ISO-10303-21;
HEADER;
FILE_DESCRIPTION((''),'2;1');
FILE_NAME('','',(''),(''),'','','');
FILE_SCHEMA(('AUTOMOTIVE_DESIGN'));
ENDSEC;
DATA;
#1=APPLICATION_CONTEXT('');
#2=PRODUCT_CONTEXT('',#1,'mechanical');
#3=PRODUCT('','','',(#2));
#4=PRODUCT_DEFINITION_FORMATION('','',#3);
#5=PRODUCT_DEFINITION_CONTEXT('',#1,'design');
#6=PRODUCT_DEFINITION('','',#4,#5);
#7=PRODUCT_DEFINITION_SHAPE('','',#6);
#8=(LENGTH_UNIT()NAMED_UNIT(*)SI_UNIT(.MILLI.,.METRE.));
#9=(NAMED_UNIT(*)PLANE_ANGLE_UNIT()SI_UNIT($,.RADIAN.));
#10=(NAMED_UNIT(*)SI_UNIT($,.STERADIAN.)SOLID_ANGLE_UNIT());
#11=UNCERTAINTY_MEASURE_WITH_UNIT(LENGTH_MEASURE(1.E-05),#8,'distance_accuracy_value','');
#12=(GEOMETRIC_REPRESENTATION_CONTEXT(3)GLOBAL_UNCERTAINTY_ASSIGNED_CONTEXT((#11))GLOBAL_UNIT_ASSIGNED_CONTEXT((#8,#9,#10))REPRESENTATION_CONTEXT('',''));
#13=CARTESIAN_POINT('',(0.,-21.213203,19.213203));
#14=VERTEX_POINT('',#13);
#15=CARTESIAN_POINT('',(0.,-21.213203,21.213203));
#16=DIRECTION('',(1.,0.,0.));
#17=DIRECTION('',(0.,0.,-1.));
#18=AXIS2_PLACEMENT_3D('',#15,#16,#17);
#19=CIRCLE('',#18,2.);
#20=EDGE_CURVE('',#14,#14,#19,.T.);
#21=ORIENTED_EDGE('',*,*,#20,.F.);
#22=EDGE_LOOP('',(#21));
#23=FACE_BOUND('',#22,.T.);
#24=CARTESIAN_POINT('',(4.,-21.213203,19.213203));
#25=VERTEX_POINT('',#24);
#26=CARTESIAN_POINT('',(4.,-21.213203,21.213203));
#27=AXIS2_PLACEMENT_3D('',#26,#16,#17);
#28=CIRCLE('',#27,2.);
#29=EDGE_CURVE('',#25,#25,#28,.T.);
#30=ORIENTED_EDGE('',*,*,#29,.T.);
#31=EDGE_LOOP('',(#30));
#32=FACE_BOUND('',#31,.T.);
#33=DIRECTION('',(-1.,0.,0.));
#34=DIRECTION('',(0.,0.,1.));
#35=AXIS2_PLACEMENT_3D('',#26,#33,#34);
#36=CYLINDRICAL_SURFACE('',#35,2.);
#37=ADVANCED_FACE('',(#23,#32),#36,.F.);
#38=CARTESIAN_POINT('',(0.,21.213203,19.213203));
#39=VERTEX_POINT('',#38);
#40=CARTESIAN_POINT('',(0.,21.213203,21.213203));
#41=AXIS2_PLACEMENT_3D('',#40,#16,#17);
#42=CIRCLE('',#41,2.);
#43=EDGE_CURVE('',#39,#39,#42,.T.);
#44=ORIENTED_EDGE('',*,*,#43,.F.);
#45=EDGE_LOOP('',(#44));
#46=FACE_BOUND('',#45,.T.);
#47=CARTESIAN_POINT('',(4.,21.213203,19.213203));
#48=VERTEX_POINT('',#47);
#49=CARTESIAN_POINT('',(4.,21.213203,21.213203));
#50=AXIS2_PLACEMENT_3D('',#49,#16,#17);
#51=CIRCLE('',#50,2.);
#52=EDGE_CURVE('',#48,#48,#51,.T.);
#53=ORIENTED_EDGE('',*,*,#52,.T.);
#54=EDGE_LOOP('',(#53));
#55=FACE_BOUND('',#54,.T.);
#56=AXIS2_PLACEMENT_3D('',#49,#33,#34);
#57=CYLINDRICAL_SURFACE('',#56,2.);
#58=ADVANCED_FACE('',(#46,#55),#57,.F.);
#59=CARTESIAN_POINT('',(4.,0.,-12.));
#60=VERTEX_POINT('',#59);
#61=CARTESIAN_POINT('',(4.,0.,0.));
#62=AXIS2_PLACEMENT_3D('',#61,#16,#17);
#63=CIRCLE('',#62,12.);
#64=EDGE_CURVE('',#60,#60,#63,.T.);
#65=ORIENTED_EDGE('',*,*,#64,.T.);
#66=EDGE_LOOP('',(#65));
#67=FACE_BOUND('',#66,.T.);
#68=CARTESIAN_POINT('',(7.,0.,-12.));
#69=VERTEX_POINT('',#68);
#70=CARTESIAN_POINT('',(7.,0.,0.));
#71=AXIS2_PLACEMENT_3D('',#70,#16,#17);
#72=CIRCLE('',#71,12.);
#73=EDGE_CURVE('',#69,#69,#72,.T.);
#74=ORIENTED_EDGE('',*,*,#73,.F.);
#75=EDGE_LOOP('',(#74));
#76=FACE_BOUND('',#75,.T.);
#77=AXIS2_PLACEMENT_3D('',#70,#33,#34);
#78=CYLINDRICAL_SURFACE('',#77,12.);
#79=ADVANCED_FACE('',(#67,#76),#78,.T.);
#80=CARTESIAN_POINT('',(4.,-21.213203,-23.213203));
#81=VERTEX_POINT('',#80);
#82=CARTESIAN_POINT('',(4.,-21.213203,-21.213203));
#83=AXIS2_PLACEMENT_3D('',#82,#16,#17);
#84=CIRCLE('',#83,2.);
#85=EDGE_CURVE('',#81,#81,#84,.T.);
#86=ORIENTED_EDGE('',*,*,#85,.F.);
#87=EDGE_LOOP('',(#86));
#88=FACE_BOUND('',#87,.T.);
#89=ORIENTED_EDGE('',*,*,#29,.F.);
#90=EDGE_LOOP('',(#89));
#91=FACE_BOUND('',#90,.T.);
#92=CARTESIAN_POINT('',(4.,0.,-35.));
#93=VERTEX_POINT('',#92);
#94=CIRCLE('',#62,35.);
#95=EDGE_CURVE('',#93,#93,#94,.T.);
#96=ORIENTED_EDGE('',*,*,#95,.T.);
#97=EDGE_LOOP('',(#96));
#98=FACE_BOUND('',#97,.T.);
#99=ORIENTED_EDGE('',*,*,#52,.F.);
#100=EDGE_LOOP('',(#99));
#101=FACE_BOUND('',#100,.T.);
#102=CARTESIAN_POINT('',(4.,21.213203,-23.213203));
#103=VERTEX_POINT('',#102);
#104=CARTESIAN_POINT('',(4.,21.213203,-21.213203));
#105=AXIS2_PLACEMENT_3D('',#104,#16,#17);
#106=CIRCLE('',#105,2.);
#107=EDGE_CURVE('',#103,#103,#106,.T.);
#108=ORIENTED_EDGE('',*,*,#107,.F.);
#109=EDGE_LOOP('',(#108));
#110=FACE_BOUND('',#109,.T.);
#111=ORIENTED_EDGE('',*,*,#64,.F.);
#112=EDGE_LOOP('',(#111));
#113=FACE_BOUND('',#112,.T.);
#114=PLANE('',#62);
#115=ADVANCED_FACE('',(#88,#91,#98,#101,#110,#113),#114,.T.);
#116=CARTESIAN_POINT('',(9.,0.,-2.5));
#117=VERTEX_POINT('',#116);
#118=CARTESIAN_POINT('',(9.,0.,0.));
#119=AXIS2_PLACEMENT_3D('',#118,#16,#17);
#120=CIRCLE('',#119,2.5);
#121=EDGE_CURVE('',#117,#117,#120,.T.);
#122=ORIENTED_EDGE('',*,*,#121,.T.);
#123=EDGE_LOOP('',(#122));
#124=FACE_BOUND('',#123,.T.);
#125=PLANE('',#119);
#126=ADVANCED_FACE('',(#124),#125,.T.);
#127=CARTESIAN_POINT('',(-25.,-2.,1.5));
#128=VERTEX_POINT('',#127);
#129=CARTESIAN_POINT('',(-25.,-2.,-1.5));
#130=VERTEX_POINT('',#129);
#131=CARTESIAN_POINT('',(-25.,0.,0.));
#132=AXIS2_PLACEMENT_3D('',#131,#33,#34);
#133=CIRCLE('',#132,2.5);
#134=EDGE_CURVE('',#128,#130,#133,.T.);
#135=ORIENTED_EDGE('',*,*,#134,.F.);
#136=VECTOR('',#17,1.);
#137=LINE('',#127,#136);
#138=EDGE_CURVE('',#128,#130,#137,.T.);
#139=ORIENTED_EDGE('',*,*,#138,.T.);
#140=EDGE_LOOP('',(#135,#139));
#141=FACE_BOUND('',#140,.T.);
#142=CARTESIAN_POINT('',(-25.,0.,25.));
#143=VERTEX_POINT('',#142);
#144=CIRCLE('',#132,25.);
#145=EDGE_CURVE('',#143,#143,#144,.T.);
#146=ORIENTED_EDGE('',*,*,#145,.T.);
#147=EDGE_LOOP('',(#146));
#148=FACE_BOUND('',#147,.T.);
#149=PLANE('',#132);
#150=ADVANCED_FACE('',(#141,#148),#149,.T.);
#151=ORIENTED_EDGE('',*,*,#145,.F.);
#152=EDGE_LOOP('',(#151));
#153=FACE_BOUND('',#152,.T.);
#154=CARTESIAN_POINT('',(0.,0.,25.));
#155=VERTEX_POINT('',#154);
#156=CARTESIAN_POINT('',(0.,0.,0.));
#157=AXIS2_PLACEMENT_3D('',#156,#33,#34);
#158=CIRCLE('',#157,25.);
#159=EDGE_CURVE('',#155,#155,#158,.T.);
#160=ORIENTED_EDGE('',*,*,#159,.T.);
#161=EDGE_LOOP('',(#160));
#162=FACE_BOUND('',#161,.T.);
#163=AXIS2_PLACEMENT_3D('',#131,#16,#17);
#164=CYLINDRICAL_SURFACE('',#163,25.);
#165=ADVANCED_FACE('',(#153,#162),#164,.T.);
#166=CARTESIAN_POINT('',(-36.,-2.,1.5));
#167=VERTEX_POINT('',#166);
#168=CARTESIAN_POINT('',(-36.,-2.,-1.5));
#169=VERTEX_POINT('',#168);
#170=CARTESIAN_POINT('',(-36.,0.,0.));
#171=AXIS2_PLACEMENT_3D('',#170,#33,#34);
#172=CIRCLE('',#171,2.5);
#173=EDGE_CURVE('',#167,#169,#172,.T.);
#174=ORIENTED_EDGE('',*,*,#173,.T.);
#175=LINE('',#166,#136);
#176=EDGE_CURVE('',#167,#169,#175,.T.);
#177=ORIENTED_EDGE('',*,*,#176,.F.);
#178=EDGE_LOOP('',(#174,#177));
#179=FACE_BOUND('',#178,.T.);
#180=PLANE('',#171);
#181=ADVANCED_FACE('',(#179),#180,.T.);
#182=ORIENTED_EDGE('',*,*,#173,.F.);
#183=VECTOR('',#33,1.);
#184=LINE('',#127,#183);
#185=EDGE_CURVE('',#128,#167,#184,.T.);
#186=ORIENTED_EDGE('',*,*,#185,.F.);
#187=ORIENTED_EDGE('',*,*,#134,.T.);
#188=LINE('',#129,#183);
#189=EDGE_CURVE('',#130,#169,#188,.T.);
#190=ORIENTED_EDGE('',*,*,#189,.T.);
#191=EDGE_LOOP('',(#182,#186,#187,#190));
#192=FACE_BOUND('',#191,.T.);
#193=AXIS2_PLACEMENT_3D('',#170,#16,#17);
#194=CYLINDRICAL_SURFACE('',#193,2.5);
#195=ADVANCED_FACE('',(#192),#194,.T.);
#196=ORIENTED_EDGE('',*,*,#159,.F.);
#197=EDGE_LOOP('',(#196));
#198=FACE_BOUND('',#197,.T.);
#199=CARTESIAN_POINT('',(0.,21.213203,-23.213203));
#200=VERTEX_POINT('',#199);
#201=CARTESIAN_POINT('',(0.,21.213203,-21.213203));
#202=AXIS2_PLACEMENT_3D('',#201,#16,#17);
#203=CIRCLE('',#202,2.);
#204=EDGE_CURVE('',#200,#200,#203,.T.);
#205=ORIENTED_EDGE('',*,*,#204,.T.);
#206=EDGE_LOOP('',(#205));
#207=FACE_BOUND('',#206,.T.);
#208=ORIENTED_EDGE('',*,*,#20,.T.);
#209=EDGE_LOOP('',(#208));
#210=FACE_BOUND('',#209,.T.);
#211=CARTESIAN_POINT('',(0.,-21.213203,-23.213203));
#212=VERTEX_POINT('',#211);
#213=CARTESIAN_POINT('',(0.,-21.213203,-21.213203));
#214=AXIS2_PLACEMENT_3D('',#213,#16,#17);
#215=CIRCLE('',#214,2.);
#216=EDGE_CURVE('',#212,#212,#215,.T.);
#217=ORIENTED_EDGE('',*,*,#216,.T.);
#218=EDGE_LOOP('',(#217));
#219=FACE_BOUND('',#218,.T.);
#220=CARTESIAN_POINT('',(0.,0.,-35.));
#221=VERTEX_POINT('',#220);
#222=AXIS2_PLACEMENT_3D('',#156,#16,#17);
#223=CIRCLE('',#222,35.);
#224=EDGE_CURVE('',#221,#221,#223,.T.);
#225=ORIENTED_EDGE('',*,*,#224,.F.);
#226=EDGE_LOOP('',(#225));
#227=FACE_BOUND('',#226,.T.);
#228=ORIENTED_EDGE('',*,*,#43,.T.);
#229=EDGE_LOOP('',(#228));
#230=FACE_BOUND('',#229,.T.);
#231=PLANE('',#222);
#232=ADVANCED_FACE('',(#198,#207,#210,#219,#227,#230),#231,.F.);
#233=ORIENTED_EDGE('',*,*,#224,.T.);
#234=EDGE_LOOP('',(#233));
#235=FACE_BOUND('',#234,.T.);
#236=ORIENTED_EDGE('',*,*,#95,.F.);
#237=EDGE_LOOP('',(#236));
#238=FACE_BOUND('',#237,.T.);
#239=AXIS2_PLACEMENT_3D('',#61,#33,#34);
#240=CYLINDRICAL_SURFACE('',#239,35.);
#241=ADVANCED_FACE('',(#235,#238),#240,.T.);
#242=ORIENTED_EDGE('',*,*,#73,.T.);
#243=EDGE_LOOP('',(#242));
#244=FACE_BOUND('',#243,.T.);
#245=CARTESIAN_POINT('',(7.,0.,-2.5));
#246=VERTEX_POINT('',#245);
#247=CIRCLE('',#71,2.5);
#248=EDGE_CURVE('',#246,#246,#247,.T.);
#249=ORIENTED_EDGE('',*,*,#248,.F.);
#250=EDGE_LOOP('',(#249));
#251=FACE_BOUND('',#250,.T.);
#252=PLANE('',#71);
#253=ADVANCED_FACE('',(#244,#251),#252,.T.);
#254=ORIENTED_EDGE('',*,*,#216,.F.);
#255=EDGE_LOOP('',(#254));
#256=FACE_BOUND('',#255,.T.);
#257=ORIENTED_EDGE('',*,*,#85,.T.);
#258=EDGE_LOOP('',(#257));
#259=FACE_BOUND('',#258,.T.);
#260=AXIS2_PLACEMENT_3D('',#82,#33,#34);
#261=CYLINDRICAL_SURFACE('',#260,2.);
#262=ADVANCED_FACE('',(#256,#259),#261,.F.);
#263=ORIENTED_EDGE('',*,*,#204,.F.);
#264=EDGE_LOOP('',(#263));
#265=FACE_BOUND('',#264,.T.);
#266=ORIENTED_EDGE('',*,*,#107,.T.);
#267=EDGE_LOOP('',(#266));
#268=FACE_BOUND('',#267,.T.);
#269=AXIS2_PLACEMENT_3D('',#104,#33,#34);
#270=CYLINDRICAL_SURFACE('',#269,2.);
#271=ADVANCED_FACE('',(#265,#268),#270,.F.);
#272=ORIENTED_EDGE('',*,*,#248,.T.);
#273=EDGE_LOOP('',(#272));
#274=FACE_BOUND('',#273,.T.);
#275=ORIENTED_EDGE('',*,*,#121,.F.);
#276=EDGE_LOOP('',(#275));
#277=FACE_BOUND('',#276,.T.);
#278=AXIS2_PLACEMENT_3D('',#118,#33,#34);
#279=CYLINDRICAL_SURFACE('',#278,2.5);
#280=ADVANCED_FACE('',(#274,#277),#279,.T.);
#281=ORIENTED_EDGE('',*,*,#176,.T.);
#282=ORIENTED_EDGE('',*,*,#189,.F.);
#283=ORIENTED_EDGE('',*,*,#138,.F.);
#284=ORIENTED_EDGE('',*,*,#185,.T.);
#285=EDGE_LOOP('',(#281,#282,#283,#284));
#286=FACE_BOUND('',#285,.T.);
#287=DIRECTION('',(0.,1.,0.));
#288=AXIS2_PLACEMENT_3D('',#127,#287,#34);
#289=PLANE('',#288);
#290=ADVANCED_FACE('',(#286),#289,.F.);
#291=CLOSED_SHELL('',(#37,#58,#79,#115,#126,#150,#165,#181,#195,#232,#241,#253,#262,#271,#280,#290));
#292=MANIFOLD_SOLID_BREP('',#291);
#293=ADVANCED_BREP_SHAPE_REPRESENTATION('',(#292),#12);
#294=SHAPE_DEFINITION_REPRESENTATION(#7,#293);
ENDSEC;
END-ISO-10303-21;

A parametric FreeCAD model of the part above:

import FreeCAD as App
import Part
import Sketcher
from FreeCAD import Vector
Q = App.Units.Quantity

doc = App.newDocument("Part")
body = doc.addObject("PartDesign::Body", "Body")

sketch1 = body.newObject("Sketcher::SketchObject", "Sketch")
sketch1.AttachmentSupport = (doc.getObject("YZ_Plane"), [""])
sketch1.MapMode = "FlatFace"
sketch1.addGeometry([
    Part.Circle(Vector(0, 0, 0), Vector(0, 0, 1), 35),
    Part.Circle(Vector(-21.213203, 21.213203, 0), Vector(0, 0, 1), 2),
    Part.Circle(Vector(-21.213203, -21.213203, 0), Vector(0, 0, 1), 2),
    Part.Circle(Vector(21.213203, 21.213203, 0), Vector(0, 0, 1), 2),
    Part.Circle(Vector(21.213203, -21.213203, 0), Vector(0, 0, 1), 2),
], False)
sketch1.addConstraint([
    Sketcher.Constraint("Coincident", 0, 3, -1, 1),
    Sketcher.Constraint("Equal", 1, 2),
    Sketcher.Constraint("Equal", 2, 3),
    Sketcher.Constraint("Equal", 3, 4),
    Sketcher.Constraint("Symmetric", 2, 3, 3, 3, -1, 1),
    Sketcher.Constraint("Symmetric", 1, 3, 4, 3, -1, 1),
    Sketcher.Constraint("Symmetric", 1, 3, 3, 3, -2),
    Sketcher.Constraint("Diameter", 0, Q("70 mm")),
    Sketcher.Constraint("Diameter", 1, Q("4 mm")),
    Sketcher.Constraint("DistanceX", 1, 3, -1, 1, Q("21.213203 mm")),
    Sketcher.Constraint("DistanceY", -1, 1, 1, 3, Q("21.213203 mm")),
])
pad1 = body.newObject("PartDesign::Pad", "Pad")
pad1.Profile = sketch1
pad1.Length = 4

sketch2 = body.newObject("Sketcher::SketchObject", "Sketch001")
sketch2.AttachmentSupport = (doc.getObject("YZ_Plane"), [""])
sketch2.MapMode = "FlatFace"
sketch2.AttachmentOffset = App.Placement(Vector(0, 0, 4), App.Rotation())
sketch2.addGeometry(Part.Circle(Vector(0, 0, 0), Vector(0, 0, 1), 12), False)
sketch2.addConstraint([
    Sketcher.Constraint("Coincident", 0, 3, -1, 1),
    Sketcher.Constraint("Diameter", 0, Q("24 mm")),
])
pad2 = body.newObject("PartDesign::Pad", "Pad001")
pad2.Profile = sketch2
pad2.Length = 3

sketch3 = body.newObject("Sketcher::SketchObject", "Sketch002")
sketch3.AttachmentSupport = (doc.getObject("YZ_Plane"), [""])
sketch3.MapMode = "FlatFace"
sketch3.AttachmentOffset = App.Placement(Vector(0, 0, 7), App.Rotation())
sketch3.addGeometry(Part.Circle(Vector(0, 0, 0), Vector(0, 0, 1), 2.5), False)
sketch3.addConstraint([
    Sketcher.Constraint("Coincident", 0, 3, -1, 1),
    Sketcher.Constraint("Diameter", 0, Q("5 mm")),
])
pad3 = body.newObject("PartDesign::Pad", "Pad002")
pad3.Profile = sketch3
pad3.Length = 2

sketch4 = body.newObject("Sketcher::SketchObject", "Sketch003")
sketch4.AttachmentSupport = (doc.getObject("YZ_Plane"), [""])
sketch4.MapMode = "FlatFace"
sketch4.addGeometry(Part.Circle(Vector(0, 0, 0), Vector(0, 0, 1), 25), False)
sketch4.addConstraint([
    Sketcher.Constraint("Coincident", 0, 3, -1, 1),
    Sketcher.Constraint("Diameter", 0, Q("50 mm")),
])
pad4 = body.newObject("PartDesign::Pad", "Pad003")
pad4.Profile = sketch4
pad4.Length = 25
pad4.Reversed = True

sketch5 = body.newObject("Sketcher::SketchObject", "Sketch004")
sketch5.AttachmentSupport = (doc.getObject("YZ_Plane"), [""])
sketch5.MapMode = "FlatFace"
sketch5.AttachmentOffset = App.Placement(Vector(0, 0, -36), App.Rotation())
sketch5.addGeometry(Part.Circle(Vector(0, 0, 0), Vector(0, 0, 1), 2.5), False)
sketch5.addConstraint([
    Sketcher.Constraint("Coincident", 0, 3, -1, 1),
    Sketcher.Constraint("Diameter", 0, Q("5 mm")),
])
pad5 = body.newObject("PartDesign::Pad", "Pad004")
pad5.Profile = sketch5
pad5.Length = 11

sketch6 = body.newObject("Sketcher::SketchObject", "Sketch005")
sketch6.AttachmentSupport = (doc.getObject("YZ_Plane"), [""])
sketch6.MapMode = "FlatFace"
sketch6.AttachmentOffset = App.Placement(Vector(0, 0, -36), App.Rotation())
sketch6.addGeometry([
    Part.LineSegment(Vector(-2, 1.5, 0), Vector(-2, -1.5, 0)),
    Part.LineSegment(Vector(-2, -1.5, 0), Vector(-3.839261, -1.5, 0)),
    Part.LineSegment(Vector(-3.839261, -1.5, 0), Vector(-3.839261, 2.041918, 0)),
    Part.LineSegment(Vector(-3.839261, 2.041918, 0), Vector(-2, 1.5, 0)),
], False)
sketch6.addConstraint([
    Sketcher.Constraint("Coincident", 0, 2, 1, 1),
    Sketcher.Constraint("Coincident", 1, 2, 2, 1),
    Sketcher.Constraint("Coincident", 2, 2, 3, 1),
    Sketcher.Constraint("Coincident", 3, 2, 0, 1),
    Sketcher.Constraint("Vertical", 0),
    Sketcher.Constraint("Horizontal", 1),
    Sketcher.Constraint("Vertical", 2),
    Sketcher.Constraint("DistanceY", 0, 2, 0, 1, Q("3 mm")),
    Sketcher.Constraint("DistanceX", 0, 2, -1, 1, Q("2 mm")),
    Sketcher.Constraint("DistanceY", 0, 2, -1, 1, Q("1.5 mm")),
    Sketcher.Constraint("DistanceX", 1, 2, 1, 1, Q("1.839261 mm")),
    Sketcher.Constraint("DistanceY", 2, 1, 2, 2, Q("3.541918 mm")),
])
pocket1 = body.newObject("PartDesign::Pocket", "Pocket")
pocket1.Profile = sketch6
pocket1.Length = 11
pocket1.Reversed = True

doc.recompute()
